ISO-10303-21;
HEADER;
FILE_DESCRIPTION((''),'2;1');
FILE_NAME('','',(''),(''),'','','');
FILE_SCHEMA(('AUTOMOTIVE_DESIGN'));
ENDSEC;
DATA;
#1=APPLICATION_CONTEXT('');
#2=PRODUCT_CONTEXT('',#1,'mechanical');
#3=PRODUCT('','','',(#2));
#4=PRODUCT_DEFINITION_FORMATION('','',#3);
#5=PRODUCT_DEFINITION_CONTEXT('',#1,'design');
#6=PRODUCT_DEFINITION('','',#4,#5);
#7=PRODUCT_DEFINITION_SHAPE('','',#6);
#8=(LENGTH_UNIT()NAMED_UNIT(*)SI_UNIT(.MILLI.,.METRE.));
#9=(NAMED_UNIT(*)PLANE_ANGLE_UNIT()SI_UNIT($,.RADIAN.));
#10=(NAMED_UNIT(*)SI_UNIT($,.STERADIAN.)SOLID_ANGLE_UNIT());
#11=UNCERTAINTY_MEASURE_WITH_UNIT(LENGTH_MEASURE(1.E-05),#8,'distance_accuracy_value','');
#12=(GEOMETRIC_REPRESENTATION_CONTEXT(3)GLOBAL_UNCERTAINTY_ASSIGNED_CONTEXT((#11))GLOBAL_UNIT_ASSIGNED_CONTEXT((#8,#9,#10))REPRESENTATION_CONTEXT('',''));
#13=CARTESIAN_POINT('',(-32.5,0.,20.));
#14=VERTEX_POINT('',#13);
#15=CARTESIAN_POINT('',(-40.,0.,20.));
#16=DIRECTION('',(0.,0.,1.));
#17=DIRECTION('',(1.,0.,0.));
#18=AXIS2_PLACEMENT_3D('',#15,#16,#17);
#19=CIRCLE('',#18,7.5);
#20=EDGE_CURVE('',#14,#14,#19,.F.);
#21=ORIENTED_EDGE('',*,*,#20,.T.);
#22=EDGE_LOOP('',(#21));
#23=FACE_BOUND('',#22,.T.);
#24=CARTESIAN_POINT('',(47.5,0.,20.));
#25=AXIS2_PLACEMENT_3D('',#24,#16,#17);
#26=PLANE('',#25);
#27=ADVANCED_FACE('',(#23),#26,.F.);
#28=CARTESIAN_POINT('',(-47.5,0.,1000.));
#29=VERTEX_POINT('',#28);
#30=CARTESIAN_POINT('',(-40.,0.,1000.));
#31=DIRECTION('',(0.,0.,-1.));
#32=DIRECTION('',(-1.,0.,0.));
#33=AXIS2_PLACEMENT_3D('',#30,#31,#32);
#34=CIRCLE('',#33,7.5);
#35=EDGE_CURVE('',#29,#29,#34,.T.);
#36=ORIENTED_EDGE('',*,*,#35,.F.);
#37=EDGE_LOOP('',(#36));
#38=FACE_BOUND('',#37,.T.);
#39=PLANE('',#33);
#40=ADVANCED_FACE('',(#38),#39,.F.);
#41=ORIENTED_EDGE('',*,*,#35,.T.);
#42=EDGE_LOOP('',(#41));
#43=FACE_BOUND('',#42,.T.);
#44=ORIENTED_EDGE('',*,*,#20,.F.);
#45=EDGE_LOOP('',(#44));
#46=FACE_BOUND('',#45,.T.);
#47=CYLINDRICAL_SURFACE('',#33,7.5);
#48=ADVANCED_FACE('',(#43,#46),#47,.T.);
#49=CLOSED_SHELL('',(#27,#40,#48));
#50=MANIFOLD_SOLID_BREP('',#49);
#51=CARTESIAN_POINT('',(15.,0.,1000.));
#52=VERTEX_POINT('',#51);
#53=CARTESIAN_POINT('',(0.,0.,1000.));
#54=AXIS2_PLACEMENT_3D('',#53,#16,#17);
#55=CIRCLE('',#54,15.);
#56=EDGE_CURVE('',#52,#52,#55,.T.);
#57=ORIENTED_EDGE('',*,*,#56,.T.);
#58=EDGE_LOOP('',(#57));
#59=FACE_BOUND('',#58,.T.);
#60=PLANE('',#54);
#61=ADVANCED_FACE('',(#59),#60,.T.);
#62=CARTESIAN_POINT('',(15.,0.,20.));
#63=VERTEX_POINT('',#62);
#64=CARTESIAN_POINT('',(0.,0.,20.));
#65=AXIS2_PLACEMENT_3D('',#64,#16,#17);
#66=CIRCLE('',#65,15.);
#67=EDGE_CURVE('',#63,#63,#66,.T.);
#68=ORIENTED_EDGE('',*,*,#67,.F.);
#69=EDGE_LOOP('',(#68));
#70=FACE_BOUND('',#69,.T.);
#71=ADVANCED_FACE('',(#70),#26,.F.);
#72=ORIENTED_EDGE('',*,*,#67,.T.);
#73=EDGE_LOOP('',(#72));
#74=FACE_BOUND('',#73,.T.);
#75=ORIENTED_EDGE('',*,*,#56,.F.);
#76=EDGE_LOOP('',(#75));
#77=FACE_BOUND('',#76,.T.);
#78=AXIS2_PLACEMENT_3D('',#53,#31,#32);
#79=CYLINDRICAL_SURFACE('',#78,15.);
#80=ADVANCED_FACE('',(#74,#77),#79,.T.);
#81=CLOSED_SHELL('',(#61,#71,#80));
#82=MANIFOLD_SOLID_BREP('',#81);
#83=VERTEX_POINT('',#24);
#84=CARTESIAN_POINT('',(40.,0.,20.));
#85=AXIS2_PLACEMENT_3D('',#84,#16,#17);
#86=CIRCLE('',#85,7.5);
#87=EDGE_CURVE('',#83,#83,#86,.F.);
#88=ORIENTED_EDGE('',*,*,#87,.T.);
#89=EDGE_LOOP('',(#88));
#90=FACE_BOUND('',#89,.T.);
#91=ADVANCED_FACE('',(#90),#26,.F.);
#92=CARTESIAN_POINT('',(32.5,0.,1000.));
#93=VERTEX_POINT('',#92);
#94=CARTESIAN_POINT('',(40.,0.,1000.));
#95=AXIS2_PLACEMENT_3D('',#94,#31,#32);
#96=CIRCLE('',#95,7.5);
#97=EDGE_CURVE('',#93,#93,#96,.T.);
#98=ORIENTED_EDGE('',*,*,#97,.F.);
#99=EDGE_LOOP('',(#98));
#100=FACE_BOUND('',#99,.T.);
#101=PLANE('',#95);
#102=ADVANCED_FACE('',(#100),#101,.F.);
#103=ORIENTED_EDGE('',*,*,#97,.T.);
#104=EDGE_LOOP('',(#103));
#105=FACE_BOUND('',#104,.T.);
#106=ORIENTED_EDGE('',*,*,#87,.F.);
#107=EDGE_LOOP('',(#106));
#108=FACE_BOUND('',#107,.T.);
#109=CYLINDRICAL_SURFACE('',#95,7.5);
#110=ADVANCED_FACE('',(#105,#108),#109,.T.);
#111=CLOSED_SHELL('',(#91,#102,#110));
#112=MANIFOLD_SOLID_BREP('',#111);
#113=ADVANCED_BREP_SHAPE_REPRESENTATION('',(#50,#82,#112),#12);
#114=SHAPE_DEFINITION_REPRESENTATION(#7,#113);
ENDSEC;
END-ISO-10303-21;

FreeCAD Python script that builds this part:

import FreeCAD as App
import Part
import Sketcher
from FreeCAD import Vector
Q = App.Units.Quantity

doc = App.newDocument("Part")
body = doc.addObject("PartDesign::Body", "Body")

# Sketch on XY plane
sketch1 = body.newObject("Sketcher::SketchObject", "Sketch")
sketch1.AttachmentSupport = (doc.getObject("XY_Plane"), [""])
sketch1.MapMode = "FlatFace"
sketch1.addGeometry(Part.Circle(Vector(0, 0, 0), Vector(0, 0, 1), 15), False)
sketch1.addConstraint(Sketcher.Constraint("Coincident", 0, 3, -1, 1))
sketch1.addConstraint(Sketcher.Constraint("Diameter", 0, Q("30 mm")))
pad1 = body.newObject("PartDesign::Pad", "Pad")
pad1.Profile = sketch1
pad1.Length = 1000
body2 = doc.addObject("PartDesign::Body", "Body001")

# Sketch on XY plane
sketch2 = body2.newObject("Sketcher::SketchObject", "Sketch001")
sketch2.AttachmentSupport = (doc.getObject("XY_Plane001"), [""])
sketch2.MapMode = "FlatFace"
sketch2.addGeometry(Part.Circle(Vector(40, 0, 0), Vector(0, 0, 1), 8), False)
sketch2.addConstraint(Sketcher.Constraint("PointOnObject", 0, 3, -1))
sketch2.addConstraint(Sketcher.Constraint("Diameter", 0, Q("15 mm")))
sketch2.addConstraint(Sketcher.Constraint("DistanceX", -1, 1, 0, 3, Q("40 mm")))
pad2 = body2.newObject("PartDesign::Pad", "Pad001")
pad2.Profile = sketch2
pad2.Length = 1000
body3 = doc.addObject("PartDesign::Body", "Body002")

# Sketch on XY plane
sketch3 = body3.newObject("Sketcher::SketchObject", "Sketch002")
sketch3.AttachmentSupport = (doc.getObject("XY_Plane002"), [""])
sketch3.MapMode = "FlatFace"
sketch3.addGeometry(Part.Circle(Vector(-40, 0, 0), Vector(0, 0, 1), 8), False)
sketch3.addConstraint(Sketcher.Constraint("PointOnObject", 0, 3, -1))
sketch3.addConstraint(Sketcher.Constraint("Diameter", 0, Q("15 mm")))
sketch3.addConstraint(Sketcher.Constraint("DistanceX", 0, 3, -1, 1, Q("40 mm")))
pad3 = body3.newObject("PartDesign::Pad", "Pad002")
pad3.Profile = sketch3
pad3.Length = 1000
body4 = doc.addObject("PartDesign::Body", "Body003")

# Sketch on YZ plane
sketch4 = body4.newObject("Sketcher::SketchObject", "Sketch003")
sketch4.AttachmentSupport = (doc.getObject("YZ_Plane003"), [""])
sketch4.MapMode = "FlatFace"
sketch4.AttachmentOffset = App.Placement(Vector(0, 0, -56.908951), App.Rotation())
sketch4.addGeometry(Part.LineSegment(Vector(33, -23, 0), Vector(-54, -23, 0)), False)
sketch4.addGeometry(Part.LineSegment(Vector(-54, -23, 0), Vector(-54, 20, 0)), False)
sketch4.addGeometry(Part.LineSegment(Vector(-54, 20, 0), Vector(33, 20, 0)), False)
sketch4.addGeometry(Part.LineSegment(Vector(33, 20, 0), Vector(33, -23, 0)), False)
sketch4.addConstraint(Sketcher.Constraint("Coincident", 0, 2, 1, 1))
sketch4.addConstraint(Sketcher.Constraint("Coincident", 1, 2, 2, 1))
sketch4.addConstraint(Sketcher.Constraint("Coincident", 2, 2, 3, 1))
sketch4.addConstraint(Sketcher.Constraint("Coincident", 3, 2, 0, 1))
sketch4.addConstraint(Sketcher.Constraint("Horizontal", 0))
sketch4.addConstraint(Sketcher.Constraint("Vertical", 1))
sketch4.addConstraint(Sketcher.Constraint("Horizontal", 2))
sketch4.addConstraint(Sketcher.Constraint("Vertical", 3))
sketch4.addConstraint(Sketcher.Constraint("DistanceY", -1, 1, 1, 2, Q("20 mm")))
sketch4.addConstraint(Sketcher.Constraint("DistanceX", 0, 2, 0, 1, Q("87.109491 mm")))
sketch4.addConstraint(Sketcher.Constraint("DistanceY", 1, 1, 1, 2, Q("43.373577 mm")))
sketch4.addConstraint(Sketcher.Constraint("DistanceX", 0, 2, -1, 1, Q("53.825309 mm")))
pad4 = body4.newObject("PartDesign::Pad", "Pad003")
pad4.Profile = sketch4
pad4.Type = "TwoLengths"
pad4.Length = 1006.547726
pad4.Length2 = 1006.547726
pad4.Reversed = True
doc.recompute()

body5 = doc.addObject("PartDesign::Body", "Body004")
body5.BaseFeature = body4
boolean = body.newObject("PartDesign::Boolean", "Boolean")
boolean.Type = "Cut"
boolean.addObjects([body5])
doc.recompute()

body6 = doc.addObject("PartDesign::Body", "Body005")
body6.BaseFeature = body4
boolean2 = body2.newObject("PartDesign::Boolean", "Boolean001")
boolean2.Type = "Cut"
boolean2.addObjects([body6])
doc.recompute()

boolean3 = body3.newObject("PartDesign::Boolean", "Boolean002")
boolean3.Type = "Cut"
boolean3.addObjects([body4])

doc.recompute()
